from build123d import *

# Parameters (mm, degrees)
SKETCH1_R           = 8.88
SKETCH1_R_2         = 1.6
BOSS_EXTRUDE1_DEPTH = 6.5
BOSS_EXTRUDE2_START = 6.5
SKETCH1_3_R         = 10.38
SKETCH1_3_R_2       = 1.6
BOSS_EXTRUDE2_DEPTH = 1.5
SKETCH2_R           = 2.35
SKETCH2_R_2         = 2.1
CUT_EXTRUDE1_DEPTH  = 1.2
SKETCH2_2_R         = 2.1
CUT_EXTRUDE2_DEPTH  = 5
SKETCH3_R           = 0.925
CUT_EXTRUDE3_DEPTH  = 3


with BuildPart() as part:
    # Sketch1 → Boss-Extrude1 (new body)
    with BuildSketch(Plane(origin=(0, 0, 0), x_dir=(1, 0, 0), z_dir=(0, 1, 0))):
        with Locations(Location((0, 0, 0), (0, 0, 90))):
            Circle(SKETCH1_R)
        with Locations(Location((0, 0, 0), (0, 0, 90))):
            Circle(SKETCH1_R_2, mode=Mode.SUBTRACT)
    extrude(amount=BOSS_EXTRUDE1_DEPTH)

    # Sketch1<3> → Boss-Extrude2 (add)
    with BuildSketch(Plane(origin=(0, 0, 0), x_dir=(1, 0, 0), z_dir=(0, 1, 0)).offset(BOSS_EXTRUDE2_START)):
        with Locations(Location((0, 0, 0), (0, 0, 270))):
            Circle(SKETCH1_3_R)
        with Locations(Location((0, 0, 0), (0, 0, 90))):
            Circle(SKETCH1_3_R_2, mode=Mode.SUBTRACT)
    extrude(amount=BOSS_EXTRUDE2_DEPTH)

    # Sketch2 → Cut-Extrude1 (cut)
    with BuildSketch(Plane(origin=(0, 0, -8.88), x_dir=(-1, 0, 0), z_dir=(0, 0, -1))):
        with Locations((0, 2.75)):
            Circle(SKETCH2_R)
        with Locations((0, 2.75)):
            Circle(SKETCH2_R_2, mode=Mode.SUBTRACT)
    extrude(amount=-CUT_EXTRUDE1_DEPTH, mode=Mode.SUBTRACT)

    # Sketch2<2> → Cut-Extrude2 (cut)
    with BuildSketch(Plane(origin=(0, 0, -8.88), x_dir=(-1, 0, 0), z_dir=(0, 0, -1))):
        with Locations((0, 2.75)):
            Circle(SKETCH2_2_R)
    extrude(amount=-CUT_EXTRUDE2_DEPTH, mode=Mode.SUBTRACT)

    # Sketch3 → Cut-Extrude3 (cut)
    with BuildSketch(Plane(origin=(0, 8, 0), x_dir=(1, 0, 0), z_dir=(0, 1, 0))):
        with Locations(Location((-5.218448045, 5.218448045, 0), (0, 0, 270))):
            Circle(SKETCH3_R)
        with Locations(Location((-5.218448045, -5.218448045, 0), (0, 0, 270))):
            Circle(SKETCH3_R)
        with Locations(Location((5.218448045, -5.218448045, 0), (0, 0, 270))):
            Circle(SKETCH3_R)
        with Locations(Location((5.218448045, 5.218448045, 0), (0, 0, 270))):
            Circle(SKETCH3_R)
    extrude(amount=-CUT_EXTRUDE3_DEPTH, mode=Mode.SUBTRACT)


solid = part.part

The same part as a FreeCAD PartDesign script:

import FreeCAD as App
import Part
import Sketcher

doc = App.newDocument("Part")
params = doc.addObject("Spreadsheet::Sheet", "Params")
for row, (alias, value) in enumerate([
    ("sketch1_diameter", "3.2 mm"),
    ("sketch1_diameter2", "17.76 mm"),
    ("pad1_length", "6.5 mm"),
    ("sketch2_diameter", "3.2 mm"),
    ("sketch2_diameter2", "20.76 mm"),
    ("pad2_length", "1.5 mm"),
    ("sketch3_diameter", "4.7 mm"),
    ("sketch3_diameter2", "4.2 mm"),
    ("pocket1_length", "1.2 mm"),
    ("sketch4_diameter", "4.2 mm"),
    ("pocket2_length", "5 mm"),
    ("sketch5_diameter", "1.85 mm"),
    ("pocket3_length", "3 mm"),
], start=1):
    params.set(f"A{row}", alias)
    params.set(f"B{row}", "=" + value)
    params.setAlias(f"B{row}", alias)

body = doc.addObject("PartDesign::Body", "Body")

# Sketch on XZ plane
sketch1 = body.newObject("Sketcher::SketchObject", "Sketch")
sketch1.AttachmentSupport = (doc.getObject("XZ_Plane"), [""])
sketch1.MapMode = "FlatFace"
sketch1.addGeometry([
    Part.Circle(App.Vector(0, 0, 0), App.Vector(0, 0, 1), 8.9),
    Part.Circle(App.Vector(0, 0, 0), App.Vector(0, 0, 1), 1.6),
], False)
sketch1.addConstraint([
    Sketcher.Constraint("Coincident", 0, 3, -1, 1),
    Sketcher.Constraint("Coincident", 1, 3, -1, 1),
    Sketcher.Constraint("Diameter", 1, 3.2),
    Sketcher.Constraint("Diameter", 0, 17.76),
])
sketch1.setExpression("Constraints[2]", "Params.sketch1_diameter")
sketch1.setExpression("Constraints[3]", "Params.sketch1_diameter2")
pad1 = body.newObject("PartDesign::Pad", "Pad")
pad1.Profile = sketch1
pad1.setExpression("Length", "Params.pad1_length")
pad1.Reversed = True

# Sketch on XZ plane
sketch2 = body.newObject("Sketcher::SketchObject", "Sketch001")
sketch2.AttachmentSupport = (doc.getObject("XZ_Plane"), [""])
sketch2.MapMode = "FlatFace"
sketch2.AttachmentOffset = App.Placement(App.Vector(0, 0, -6.5), App.Rotation())
sketch2.addGeometry([
    Part.Circle(App.Vector(0, 0, 0), App.Vector(0, 0, 1), 10.4),
    Part.Circle(App.Vector(0, 0, 0), App.Vector(0, 0, 1), 1.6),
], False)
sketch2.addConstraint([
    Sketcher.Constraint("Coincident", 0, 3, -1, 1),
    Sketcher.Constraint("Coincident", 1, 3, -1, 1),
    Sketcher.Constraint("Diameter", 1, 3.2),
    Sketcher.Constraint("Diameter", 0, 20.76),
])
sketch2.setExpression("Constraints[2]", "Params.sketch2_diameter")
sketch2.setExpression("Constraints[3]", "Params.sketch2_diameter2")
pad2 = body.newObject("PartDesign::Pad", "Pad001")
pad2.Profile = sketch2
pad2.setExpression("Length", "Params.pad2_length")
pad2.Reversed = True

# Sketch on XY plane
sketch3 = body.newObject("Sketcher::SketchObject", "Sketch002")
sketch3.AttachmentSupport = (doc.getObject("XY_Plane"), [""])
sketch3.MapMode = "FlatFace"
sketch3.AttachmentOffset = App.Placement(App.Vector(0, 0, -8.88), App.Rotation())
sketch3.addGeometry([
    Part.Circle(App.Vector(0, 2.8, 0), App.Vector(0, 0, 1), 2.4),
    Part.Circle(App.Vector(0, 2.8, 0), App.Vector(0, 0, 1), 2.1),
], False)
sketch3.addConstraint([
    Sketcher.Constraint("Coincident", 1, 3, 0, 3),
    Sketcher.Constraint("PointOnObject", 0, 3, -2),
    Sketcher.Constraint("Diameter", 0, 4.7),
    Sketcher.Constraint("Diameter", 1, 4.2),
    Sketcher.Constraint("DistanceY", -1, 1, 0, 3, 2.75),
])
sketch3.setExpression("Constraints[2]", "Params.sketch3_diameter")
sketch3.setExpression("Constraints[3]", "Params.sketch3_diameter2")
pocket1 = body.newObject("PartDesign::Pocket", "Pocket")
pocket1.Profile = sketch3
pocket1.setExpression("Length", "Params.pocket1_length")
pocket1.Reversed = True

# Sketch on XY plane
sketch4 = body.newObject("Sketcher::SketchObject", "Sketch003")
sketch4.AttachmentSupport = (doc.getObject("XY_Plane"), [""])
sketch4.MapMode = "FlatFace"
sketch4.AttachmentOffset = App.Placement(App.Vector(0, 0, -8.88), App.Rotation())
sketch4.addGeometry(Part.Circle(App.Vector(0, 2.8, 0), App.Vector(0, 0, 1), 2.1), False)
sketch4.addConstraint([
    Sketcher.Constraint("PointOnObject", 0, 3, -2),
    Sketcher.Constraint("Diameter", 0, 4.2),
    Sketcher.Constraint("DistanceY", -1, 1, 0, 3, 2.75),
])
sketch4.setExpression("Constraints[1]", "Params.sketch4_diameter")
pocket2 = body.newObject("PartDesign::Pocket", "Pocket001")
pocket2.Profile = sketch4
pocket2.setExpression("Length", "Params.pocket2_length")
pocket2.Reversed = True

# Sketch on XZ plane
sketch5 = body.newObject("Sketcher::SketchObject", "Sketch004")
sketch5.AttachmentSupport = (doc.getObject("XZ_Plane"), [""])
sketch5.MapMode = "FlatFace"
sketch5.AttachmentOffset = App.Placement(App.Vector(0, 0, -8), App.Rotation())
sketch5.addGeometry([
    Part.Circle(App.Vector(-5.2, -5.2, 0), App.Vector(0, 0, 1), 0.9),
    Part.Circle(App.Vector(-5.2, 5.2, 0), App.Vector(0, 0, 1), 0.9),
    Part.Circle(App.Vector(5.2, 5.2, 0), App.Vector(0, 0, 1), 0.9),
    Part.Circle(App.Vector(5.2, -5.2, 0), App.Vector(0, 0, 1), 0.9),
], False)
sketch5.addConstraint([
    Sketcher.Constraint("Equal", 0, 1),
    Sketcher.Constraint("Equal", 1, 2),
    Sketcher.Constraint("Equal", 2, 3),
    Sketcher.Constraint("Symmetric", 0, 3, 2, 3, -1, 1),
    Sketcher.Constraint("Symmetric", 1, 3, 3, 3, -1, 1),
    Sketcher.Constraint("Symmetric", 1, 3, 2, 3, -2),
    Sketcher.Constraint("Diameter", 0, 1.85),
    Sketcher.Constraint("DistanceX", 0, 3, -1, 1, 5.218448),
    Sketcher.Constraint("DistanceY", 0, 3, -1, 1, 5.218448),
])
sketch5.setExpression("Constraints[6]", "Params.sketch5_diameter")
pocket3 = body.newObject("PartDesign::Pocket", "Pocket002")
pocket3.Profile = sketch5
pocket3.setExpression("Length", "Params.pocket3_length")
pocket3.Reversed = True

doc.recompute()
